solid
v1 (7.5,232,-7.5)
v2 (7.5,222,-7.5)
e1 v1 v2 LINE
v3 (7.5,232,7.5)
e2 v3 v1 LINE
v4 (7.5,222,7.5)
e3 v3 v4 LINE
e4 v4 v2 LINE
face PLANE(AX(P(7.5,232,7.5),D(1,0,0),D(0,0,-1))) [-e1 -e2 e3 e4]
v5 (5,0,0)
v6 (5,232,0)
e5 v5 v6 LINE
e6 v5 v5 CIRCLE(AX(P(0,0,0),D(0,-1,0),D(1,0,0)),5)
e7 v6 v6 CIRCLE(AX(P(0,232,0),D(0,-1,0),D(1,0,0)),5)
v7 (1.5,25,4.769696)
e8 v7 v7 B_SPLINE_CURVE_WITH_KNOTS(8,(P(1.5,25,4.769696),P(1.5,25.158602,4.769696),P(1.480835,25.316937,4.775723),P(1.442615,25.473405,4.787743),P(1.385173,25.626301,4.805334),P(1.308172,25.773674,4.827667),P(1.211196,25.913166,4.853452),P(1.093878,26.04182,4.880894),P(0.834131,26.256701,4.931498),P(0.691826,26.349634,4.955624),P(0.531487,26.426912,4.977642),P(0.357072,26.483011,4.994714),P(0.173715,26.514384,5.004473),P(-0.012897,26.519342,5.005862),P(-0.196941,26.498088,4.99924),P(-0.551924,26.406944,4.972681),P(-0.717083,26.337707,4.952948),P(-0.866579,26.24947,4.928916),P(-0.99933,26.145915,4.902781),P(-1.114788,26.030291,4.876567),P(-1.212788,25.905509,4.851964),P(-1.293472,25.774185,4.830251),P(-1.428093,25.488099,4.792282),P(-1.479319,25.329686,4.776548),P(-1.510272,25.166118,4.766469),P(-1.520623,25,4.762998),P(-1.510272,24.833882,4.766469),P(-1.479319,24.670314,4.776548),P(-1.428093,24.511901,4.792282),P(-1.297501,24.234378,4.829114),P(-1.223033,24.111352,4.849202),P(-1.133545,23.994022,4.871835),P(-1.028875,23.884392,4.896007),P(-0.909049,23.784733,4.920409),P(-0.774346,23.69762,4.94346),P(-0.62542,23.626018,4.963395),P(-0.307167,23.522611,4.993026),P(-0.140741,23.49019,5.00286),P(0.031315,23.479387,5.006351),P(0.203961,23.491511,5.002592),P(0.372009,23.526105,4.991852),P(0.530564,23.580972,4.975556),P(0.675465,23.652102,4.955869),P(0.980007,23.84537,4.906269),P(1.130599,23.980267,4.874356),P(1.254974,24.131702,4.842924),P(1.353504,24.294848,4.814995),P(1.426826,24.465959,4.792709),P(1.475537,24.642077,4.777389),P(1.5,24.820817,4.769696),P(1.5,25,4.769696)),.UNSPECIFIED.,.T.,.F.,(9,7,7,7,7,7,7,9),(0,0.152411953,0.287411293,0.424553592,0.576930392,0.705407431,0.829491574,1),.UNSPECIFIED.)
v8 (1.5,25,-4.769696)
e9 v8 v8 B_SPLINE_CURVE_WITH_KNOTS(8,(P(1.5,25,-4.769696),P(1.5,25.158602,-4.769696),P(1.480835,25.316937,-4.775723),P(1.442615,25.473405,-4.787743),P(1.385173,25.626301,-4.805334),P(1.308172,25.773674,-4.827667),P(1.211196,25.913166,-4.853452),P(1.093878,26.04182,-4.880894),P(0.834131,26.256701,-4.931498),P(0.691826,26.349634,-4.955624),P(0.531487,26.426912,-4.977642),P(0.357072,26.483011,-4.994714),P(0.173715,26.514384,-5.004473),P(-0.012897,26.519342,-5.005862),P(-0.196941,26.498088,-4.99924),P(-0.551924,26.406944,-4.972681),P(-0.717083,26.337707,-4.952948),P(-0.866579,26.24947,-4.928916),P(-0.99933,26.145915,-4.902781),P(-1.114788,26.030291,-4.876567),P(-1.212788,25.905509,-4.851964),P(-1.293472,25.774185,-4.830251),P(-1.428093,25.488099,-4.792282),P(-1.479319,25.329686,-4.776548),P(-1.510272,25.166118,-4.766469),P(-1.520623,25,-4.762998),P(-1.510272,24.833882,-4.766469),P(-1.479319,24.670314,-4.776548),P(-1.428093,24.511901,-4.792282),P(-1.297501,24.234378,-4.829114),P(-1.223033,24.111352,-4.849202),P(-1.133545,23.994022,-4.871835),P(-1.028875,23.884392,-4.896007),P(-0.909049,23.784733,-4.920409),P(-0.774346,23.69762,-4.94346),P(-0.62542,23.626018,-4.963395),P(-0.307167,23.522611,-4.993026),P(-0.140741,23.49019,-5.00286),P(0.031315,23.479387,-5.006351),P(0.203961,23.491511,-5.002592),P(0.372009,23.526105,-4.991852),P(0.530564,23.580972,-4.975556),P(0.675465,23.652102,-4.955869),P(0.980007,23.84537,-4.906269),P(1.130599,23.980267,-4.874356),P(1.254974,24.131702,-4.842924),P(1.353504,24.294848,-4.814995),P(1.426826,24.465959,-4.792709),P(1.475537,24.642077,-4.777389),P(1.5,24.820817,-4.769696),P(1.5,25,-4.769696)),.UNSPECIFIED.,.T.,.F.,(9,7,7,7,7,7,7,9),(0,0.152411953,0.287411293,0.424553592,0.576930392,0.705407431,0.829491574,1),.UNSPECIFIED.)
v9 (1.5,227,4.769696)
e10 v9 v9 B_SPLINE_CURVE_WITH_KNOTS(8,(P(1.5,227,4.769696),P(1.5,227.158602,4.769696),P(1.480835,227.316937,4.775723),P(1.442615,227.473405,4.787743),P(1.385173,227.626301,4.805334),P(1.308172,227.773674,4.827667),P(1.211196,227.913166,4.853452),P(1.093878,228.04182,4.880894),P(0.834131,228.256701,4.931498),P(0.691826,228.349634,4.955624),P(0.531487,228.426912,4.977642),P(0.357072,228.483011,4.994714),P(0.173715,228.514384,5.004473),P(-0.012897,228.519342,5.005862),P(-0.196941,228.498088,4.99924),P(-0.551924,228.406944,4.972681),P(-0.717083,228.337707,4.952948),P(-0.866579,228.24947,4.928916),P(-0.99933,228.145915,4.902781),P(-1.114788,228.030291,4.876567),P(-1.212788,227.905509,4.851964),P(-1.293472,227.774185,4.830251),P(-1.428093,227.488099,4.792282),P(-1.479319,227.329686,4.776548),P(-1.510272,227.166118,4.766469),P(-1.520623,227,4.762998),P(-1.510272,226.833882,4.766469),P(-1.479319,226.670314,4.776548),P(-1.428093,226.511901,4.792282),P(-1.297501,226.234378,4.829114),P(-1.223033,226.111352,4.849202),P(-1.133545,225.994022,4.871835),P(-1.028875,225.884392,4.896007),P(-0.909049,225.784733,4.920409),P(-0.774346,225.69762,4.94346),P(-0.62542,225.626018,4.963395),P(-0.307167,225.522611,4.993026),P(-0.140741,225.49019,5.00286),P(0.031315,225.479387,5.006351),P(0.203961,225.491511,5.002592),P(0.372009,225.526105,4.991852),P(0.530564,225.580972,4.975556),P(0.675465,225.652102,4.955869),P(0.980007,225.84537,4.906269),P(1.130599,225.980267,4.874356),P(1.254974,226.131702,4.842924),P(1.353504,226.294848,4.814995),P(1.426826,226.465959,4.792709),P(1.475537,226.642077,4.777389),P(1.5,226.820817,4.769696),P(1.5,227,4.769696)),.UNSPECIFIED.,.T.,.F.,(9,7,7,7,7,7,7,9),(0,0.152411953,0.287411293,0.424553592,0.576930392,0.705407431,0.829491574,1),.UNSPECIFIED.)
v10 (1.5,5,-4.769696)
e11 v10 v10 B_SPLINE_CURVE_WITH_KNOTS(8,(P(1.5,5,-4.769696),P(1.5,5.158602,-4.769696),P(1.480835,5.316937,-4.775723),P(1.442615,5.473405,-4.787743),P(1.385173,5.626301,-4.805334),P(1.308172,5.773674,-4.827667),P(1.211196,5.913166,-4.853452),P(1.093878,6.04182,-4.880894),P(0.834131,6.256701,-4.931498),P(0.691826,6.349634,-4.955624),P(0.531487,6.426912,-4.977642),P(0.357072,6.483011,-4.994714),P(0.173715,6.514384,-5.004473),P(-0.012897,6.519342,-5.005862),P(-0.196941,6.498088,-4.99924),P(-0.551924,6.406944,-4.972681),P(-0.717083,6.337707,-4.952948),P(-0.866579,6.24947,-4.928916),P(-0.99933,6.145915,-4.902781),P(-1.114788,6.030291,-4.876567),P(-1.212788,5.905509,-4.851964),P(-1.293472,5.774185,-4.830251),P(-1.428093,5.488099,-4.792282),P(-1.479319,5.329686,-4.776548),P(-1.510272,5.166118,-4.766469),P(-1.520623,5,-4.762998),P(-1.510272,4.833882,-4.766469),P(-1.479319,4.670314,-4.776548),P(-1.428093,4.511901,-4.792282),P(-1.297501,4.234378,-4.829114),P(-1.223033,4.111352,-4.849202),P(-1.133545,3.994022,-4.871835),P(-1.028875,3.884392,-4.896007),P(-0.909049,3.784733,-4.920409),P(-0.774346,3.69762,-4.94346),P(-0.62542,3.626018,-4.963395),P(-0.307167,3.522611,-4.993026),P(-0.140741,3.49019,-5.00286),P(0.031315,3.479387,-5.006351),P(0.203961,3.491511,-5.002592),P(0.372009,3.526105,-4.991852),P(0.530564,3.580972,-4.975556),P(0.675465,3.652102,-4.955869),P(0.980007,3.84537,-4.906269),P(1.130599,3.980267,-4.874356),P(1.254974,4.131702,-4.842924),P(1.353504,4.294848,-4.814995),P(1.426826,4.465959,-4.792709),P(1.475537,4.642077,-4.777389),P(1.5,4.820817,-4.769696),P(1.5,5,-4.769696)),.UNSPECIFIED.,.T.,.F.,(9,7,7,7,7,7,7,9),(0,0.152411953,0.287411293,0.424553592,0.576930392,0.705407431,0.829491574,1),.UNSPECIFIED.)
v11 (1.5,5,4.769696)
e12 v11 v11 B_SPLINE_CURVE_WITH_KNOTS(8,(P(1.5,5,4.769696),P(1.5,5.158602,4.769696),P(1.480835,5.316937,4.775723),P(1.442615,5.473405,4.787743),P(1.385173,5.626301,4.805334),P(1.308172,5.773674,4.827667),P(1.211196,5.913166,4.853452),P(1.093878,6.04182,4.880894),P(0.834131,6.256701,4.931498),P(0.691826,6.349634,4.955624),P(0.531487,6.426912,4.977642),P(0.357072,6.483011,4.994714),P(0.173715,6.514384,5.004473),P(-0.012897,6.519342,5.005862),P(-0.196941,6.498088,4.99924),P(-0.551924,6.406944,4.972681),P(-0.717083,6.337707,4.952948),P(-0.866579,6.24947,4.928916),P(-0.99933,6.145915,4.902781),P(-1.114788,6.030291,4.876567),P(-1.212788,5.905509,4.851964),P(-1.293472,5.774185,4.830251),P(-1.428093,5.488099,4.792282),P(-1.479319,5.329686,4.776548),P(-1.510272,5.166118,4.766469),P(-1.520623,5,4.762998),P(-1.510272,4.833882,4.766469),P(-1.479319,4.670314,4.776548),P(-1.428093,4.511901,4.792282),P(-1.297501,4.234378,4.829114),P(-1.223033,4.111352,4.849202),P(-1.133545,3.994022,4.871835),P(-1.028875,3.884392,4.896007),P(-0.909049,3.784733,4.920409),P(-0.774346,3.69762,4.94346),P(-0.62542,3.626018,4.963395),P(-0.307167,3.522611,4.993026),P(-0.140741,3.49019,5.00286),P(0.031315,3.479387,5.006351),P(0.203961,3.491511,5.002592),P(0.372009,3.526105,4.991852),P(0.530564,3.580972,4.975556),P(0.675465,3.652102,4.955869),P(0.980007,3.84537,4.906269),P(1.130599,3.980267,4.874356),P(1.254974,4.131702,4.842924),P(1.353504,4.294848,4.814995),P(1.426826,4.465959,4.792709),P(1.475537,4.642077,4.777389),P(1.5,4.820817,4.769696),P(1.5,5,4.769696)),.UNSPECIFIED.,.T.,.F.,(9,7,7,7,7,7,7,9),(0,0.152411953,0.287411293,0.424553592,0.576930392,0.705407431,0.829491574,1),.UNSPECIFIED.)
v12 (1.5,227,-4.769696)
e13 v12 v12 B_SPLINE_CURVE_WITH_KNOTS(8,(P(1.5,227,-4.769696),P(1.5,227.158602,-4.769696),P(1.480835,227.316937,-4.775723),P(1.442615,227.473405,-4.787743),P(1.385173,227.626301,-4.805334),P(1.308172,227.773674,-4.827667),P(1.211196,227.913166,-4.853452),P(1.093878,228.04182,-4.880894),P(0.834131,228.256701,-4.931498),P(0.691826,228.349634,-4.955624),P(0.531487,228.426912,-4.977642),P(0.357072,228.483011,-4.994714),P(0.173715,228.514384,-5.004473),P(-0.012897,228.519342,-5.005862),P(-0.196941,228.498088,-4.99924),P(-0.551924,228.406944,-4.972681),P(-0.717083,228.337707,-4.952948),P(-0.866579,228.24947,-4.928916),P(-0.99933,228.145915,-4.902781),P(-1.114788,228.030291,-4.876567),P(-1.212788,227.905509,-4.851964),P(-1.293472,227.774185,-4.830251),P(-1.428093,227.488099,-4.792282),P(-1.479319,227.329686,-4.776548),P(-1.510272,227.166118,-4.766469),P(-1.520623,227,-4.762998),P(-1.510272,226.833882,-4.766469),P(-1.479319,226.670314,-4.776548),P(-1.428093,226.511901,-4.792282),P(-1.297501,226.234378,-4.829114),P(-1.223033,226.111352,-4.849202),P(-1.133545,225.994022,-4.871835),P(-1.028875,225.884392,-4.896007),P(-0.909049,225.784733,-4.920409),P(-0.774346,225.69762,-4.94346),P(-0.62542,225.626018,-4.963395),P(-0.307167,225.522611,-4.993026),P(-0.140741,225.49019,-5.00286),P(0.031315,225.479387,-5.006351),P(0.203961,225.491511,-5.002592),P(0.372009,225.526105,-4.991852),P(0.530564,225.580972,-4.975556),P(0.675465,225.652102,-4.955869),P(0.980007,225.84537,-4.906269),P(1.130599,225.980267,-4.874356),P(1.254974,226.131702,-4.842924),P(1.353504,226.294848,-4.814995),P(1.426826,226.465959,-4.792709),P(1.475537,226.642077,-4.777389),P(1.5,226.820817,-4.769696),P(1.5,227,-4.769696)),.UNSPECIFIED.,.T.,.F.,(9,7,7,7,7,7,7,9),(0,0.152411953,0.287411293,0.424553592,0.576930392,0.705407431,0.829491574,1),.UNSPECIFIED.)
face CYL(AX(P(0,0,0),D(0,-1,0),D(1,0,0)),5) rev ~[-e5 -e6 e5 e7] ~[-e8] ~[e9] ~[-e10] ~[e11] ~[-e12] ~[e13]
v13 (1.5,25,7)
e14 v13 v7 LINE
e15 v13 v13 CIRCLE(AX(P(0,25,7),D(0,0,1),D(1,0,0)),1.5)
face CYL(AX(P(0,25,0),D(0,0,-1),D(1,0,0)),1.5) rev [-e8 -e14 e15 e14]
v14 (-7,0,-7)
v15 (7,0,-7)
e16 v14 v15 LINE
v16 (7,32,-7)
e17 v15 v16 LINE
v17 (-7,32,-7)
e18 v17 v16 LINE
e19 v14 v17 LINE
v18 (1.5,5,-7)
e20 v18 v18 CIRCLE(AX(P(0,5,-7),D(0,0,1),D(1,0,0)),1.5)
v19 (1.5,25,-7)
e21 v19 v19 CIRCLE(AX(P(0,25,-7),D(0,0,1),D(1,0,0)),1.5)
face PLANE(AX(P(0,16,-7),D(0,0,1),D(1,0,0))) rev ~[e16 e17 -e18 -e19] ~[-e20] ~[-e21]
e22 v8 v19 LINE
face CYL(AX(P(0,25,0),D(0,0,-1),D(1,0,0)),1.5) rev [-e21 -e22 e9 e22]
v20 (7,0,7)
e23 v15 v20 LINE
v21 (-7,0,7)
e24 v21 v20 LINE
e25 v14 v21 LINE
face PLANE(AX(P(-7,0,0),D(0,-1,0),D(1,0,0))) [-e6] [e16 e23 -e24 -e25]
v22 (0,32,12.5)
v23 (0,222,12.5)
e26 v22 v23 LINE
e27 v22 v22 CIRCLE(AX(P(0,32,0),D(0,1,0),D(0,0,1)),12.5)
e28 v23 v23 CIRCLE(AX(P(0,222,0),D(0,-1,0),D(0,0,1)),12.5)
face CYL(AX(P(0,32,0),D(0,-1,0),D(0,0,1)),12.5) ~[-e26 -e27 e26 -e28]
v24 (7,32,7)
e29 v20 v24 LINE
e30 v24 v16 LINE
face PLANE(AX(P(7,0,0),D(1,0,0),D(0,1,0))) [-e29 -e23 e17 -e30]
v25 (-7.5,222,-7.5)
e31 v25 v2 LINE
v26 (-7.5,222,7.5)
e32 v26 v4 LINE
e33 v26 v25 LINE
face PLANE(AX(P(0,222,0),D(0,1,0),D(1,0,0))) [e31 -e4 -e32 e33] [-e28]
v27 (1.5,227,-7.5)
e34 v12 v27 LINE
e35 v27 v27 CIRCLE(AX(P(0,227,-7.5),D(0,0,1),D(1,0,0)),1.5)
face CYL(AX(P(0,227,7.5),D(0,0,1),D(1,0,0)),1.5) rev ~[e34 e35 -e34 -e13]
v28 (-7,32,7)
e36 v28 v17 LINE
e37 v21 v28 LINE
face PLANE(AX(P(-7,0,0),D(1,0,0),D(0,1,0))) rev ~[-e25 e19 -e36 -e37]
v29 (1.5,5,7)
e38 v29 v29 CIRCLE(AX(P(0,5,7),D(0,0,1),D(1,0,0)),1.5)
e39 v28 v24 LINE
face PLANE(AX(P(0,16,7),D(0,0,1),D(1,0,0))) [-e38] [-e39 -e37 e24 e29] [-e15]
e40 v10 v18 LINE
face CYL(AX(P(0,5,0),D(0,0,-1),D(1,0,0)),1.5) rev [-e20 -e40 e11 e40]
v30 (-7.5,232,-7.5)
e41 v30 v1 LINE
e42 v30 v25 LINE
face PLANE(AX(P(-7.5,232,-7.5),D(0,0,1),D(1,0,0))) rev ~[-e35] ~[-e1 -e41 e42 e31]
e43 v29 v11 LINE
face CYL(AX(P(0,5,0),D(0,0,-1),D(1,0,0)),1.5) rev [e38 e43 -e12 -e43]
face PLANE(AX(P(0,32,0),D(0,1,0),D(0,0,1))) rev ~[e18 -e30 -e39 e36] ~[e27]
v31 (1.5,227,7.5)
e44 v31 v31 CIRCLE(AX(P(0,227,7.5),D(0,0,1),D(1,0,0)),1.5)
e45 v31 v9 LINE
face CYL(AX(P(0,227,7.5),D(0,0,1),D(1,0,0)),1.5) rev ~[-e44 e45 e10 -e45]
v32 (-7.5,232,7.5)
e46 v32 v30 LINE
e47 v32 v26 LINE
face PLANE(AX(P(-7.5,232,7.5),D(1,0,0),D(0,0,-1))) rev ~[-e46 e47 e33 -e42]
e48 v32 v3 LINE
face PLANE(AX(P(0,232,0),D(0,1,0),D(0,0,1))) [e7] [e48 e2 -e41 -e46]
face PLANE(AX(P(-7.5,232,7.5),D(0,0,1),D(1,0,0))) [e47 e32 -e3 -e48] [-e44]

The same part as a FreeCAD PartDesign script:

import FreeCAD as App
import Part
import Sketcher
Q = App.Units.Quantity

doc = App.newDocument("Part")
params = doc.addObject("Spreadsheet::Sheet", "Params")
for row, (alias, value) in enumerate([
    ("sketch1_diameter", "3 mm"),
    ("sketch1_width", "14 mm"),
    ("sketch1_height", "32 mm"),
    ("pad1_length", "14 mm"),
    ("sketch2_diameter", "25 mm"),
    ("pad2_length", "200 mm"),
    ("sketch3_width", "15 mm"),
    ("pocket1_length", "10 mm"),
    ("sketch4_diameter", "3 mm"),
    ("sketch5_diameter", "10 mm"),
], start=1):
    params.set(f"A{row}", alias)
    params.set(f"B{row}", "=" + value)
    params.setAlias(f"B{row}", alias)

body = doc.addObject("PartDesign::Body", "Body")

sketch1 = body.newObject("Sketcher::SketchObject", "Sketch")
sketch1.AttachmentSupport = (doc.getObject("XY_Plane"), [""])
sketch1.MapMode = "FlatFace"
sketch1.addGeometry([
    Part.LineSegment(App.Vector(-7, 32, 0), App.Vector(-7, 0, 0)),
    Part.LineSegment(App.Vector(-7, 0, 0), App.Vector(7, 0, 0)),
    Part.LineSegment(App.Vector(7, 0, 0), App.Vector(7, 32, 0)),
    Part.LineSegment(App.Vector(7, 32, 0), App.Vector(-7, 32, 0)),
    Part.Circle(App.Vector(0, 5, 0), App.Vector(0, 0, 1), 1.5),
    Part.Circle(App.Vector(0, 25, 0), App.Vector(0, 0, 1), 1.5),
], False)
sketch1.addConstraint([
    Sketcher.Constraint("Coincident", 0, 2, 1, 1),
    Sketcher.Constraint("Coincident", 1, 2, 2, 1),
    Sketcher.Constraint("Coincident", 2, 2, 3, 1),
    Sketcher.Constraint("Coincident", 3, 2, 0, 1),
    Sketcher.Constraint("Vertical", 0),
    Sketcher.Constraint("Horizontal", 1),
    Sketcher.Constraint("Vertical", 2),
    Sketcher.Constraint("Horizontal", 3),
    Sketcher.Constraint("Equal", 4, 5),
    Sketcher.Constraint("Symmetric", 0, 2, 1, 2, -1, 1),
    Sketcher.Constraint("PointOnObject", 4, 3, -2),
    Sketcher.Constraint("PointOnObject", 5, 3, -2),
    Sketcher.Constraint("Diameter", 4, Q("3 mm")),
    Sketcher.Constraint("DistanceX", 1, 1, 1, 2, Q("14 mm")),
    Sketcher.Constraint("DistanceY", 0, 2, 0, 1, Q("32 mm")),
    Sketcher.Constraint("DistanceY", -1, 1, 4, 3, Q("5 mm")),
    Sketcher.Constraint("DistanceY", -1, 1, 5, 3, Q("25 mm")),
])
sketch1.setExpression("Constraints[12]", "Params.sketch1_diameter")
sketch1.setExpression("Constraints[13]", "Params.sketch1_width")
sketch1.setExpression("Constraints[14]", "Params.sketch1_height")
pad1 = body.newObject("PartDesign::Pad", "Pad")
pad1.Profile = sketch1
pad1.setExpression("Length", "Params.pad1_length")
pad1.Midplane = True

sketch2 = body.newObject("Sketcher::SketchObject", "Sketch001")
sketch2.AttachmentSupport = (doc.getObject("XZ_Plane"), [""])
sketch2.MapMode = "FlatFace"
sketch2.AttachmentOffset = App.Placement(App.Vector(0, 0, -32), App.Rotation())
sketch2.addGeometry(Part.Circle(App.Vector(0, 0, 0), App.Vector(0, 0, 1), 12), False)
sketch2.addConstraint([
    Sketcher.Constraint("Coincident", 0, 3, -1, 1),
    Sketcher.Constraint("Diameter", 0, Q("25 mm")),
])
sketch2.setExpression("Constraints[1]", "Params.sketch2_diameter")
pad2 = body.newObject("PartDesign::Pad", "Pad001")
pad2.Profile = sketch2
pad2.setExpression("Length", "Params.pad2_length")
pad2.Reversed = True

sketch3 = body.newObject("Sketcher::SketchObject", "Sketch002")
sketch3.AttachmentSupport = (doc.getObject("XZ_Plane"), [""])
sketch3.MapMode = "FlatFace"
sketch3.AttachmentOffset = App.Placement(App.Vector(0, 0, -232), App.Rotation())
sketch3.addGeometry([
    Part.LineSegment(App.Vector(-37, -37, 0), App.Vector(-37, 37, 0)),
    Part.LineSegment(App.Vector(-37, 37, 0), App.Vector(37, 37, 0)),
    Part.LineSegment(App.Vector(37, 37, 0), App.Vector(37, -37, 0)),
    Part.LineSegment(App.Vector(37, -37, 0), App.Vector(-37, -37, 0)),
    Part.LineSegment(App.Vector(8, 8, 0), App.Vector(-8, 8, 0)),
    Part.LineSegment(App.Vector(-8, 8, 0), App.Vector(-8, -8, 0)),
    Part.LineSegment(App.Vector(-8, -8, 0), App.Vector(8, -8, 0)),
    Part.LineSegment(App.Vector(8, -8, 0), App.Vector(8, 8, 0)),
], False)
sketch3.addConstraint([
    Sketcher.Constraint("Coincident", 0, 2, 1, 1),
    Sketcher.Constraint("Coincident", 1, 2, 2, 1),
    Sketcher.Constraint("Coincident", 2, 2, 3, 1),
    Sketcher.Constraint("Coincident", 3, 2, 0, 1),
    Sketcher.Constraint("Coincident", 4, 2, 5, 1),
    Sketcher.Constraint("Coincident", 5, 2, 6, 1),
    Sketcher.Constraint("Coincident", 6, 2, 7, 1),
    Sketcher.Constraint("Coincident", 7, 2, 4, 1),
    Sketcher.Constraint("Vertical", 0),
    Sketcher.Constraint("Horizontal", 1),
    Sketcher.Constraint("Vertical", 2),
    Sketcher.Constraint("Horizontal", 3),
    Sketcher.Constraint("Horizontal", 4),
    Sketcher.Constraint("Vertical", 5),
    Sketcher.Constraint("Horizontal", 6),
    Sketcher.Constraint("Vertical", 7),
    Sketcher.Constraint("Symmetric", 0, 2, 2, 2, -1, 1),
    Sketcher.Constraint("Symmetric", 4, 2, 6, 2, -1, 1),
    Sketcher.Constraint("Equal", 3, 0),
    Sketcher.Constraint("Equal", 6, 5),
    Sketcher.Constraint("DistanceX", 4, 2, 4, 1, Q("15 mm")),
    Sketcher.Constraint("DistanceX", 1, 1, 1, 2, Q("73.936 mm")),
])
sketch3.setExpression("Constraints[20]", "Params.sketch3_width")
pocket1 = body.newObject("PartDesign::Pocket", "Pocket")
pocket1.Profile = sketch3
pocket1.setExpression("Length", "Params.pocket1_length")
pocket1.Reversed = True

sketch4 = body.newObject("Sketcher::SketchObject", "Sketch003")
sketch4.AttachmentSupport = (doc.getObject("XY_Plane"), [""])
sketch4.MapMode = "FlatFace"
sketch4.AttachmentOffset = App.Placement(App.Vector(0, 0, 7.5), App.Rotation())
sketch4.addGeometry(Part.Circle(App.Vector(0, 227, 0), App.Vector(0, 0, 1), 1.5), False)
sketch4.addConstraint([
    Sketcher.Constraint("PointOnObject", 0, 3, -2),
    Sketcher.Constraint("Diameter", 0, Q("3 mm")),
    Sketcher.Constraint("DistanceY", -1, 1, 0, 3, Q("227 mm")),
])
sketch4.setExpression("Constraints[1]", "Params.sketch4_diameter")
pocket2 = body.newObject("PartDesign::Pocket", "Pocket001")
pocket2.Profile = sketch4
pocket2.Type = "ThroughAll"

sketch5 = body.newObject("Sketcher::SketchObject", "Sketch004")
sketch5.AttachmentSupport = (doc.getObject("XZ_Plane"), [""])
sketch5.MapMode = "FlatFace"
sketch5.addGeometry(Part.Circle(App.Vector(0, 0, 0), App.Vector(0, 0, 1), 5), False)
sketch5.addConstraint([
    Sketcher.Constraint("Coincident", 0, 3, -1, 1),
    Sketcher.Constraint("Diameter", 0, Q("10 mm")),
])
sketch5.setExpression("Constraints[1]", "Params.sketch5_diameter")
pocket3 = body.newObject("PartDesign::Pocket", "Pocket002")
pocket3.Profile = sketch5
pocket3.Type = "ThroughAll"

doc.recompute()
